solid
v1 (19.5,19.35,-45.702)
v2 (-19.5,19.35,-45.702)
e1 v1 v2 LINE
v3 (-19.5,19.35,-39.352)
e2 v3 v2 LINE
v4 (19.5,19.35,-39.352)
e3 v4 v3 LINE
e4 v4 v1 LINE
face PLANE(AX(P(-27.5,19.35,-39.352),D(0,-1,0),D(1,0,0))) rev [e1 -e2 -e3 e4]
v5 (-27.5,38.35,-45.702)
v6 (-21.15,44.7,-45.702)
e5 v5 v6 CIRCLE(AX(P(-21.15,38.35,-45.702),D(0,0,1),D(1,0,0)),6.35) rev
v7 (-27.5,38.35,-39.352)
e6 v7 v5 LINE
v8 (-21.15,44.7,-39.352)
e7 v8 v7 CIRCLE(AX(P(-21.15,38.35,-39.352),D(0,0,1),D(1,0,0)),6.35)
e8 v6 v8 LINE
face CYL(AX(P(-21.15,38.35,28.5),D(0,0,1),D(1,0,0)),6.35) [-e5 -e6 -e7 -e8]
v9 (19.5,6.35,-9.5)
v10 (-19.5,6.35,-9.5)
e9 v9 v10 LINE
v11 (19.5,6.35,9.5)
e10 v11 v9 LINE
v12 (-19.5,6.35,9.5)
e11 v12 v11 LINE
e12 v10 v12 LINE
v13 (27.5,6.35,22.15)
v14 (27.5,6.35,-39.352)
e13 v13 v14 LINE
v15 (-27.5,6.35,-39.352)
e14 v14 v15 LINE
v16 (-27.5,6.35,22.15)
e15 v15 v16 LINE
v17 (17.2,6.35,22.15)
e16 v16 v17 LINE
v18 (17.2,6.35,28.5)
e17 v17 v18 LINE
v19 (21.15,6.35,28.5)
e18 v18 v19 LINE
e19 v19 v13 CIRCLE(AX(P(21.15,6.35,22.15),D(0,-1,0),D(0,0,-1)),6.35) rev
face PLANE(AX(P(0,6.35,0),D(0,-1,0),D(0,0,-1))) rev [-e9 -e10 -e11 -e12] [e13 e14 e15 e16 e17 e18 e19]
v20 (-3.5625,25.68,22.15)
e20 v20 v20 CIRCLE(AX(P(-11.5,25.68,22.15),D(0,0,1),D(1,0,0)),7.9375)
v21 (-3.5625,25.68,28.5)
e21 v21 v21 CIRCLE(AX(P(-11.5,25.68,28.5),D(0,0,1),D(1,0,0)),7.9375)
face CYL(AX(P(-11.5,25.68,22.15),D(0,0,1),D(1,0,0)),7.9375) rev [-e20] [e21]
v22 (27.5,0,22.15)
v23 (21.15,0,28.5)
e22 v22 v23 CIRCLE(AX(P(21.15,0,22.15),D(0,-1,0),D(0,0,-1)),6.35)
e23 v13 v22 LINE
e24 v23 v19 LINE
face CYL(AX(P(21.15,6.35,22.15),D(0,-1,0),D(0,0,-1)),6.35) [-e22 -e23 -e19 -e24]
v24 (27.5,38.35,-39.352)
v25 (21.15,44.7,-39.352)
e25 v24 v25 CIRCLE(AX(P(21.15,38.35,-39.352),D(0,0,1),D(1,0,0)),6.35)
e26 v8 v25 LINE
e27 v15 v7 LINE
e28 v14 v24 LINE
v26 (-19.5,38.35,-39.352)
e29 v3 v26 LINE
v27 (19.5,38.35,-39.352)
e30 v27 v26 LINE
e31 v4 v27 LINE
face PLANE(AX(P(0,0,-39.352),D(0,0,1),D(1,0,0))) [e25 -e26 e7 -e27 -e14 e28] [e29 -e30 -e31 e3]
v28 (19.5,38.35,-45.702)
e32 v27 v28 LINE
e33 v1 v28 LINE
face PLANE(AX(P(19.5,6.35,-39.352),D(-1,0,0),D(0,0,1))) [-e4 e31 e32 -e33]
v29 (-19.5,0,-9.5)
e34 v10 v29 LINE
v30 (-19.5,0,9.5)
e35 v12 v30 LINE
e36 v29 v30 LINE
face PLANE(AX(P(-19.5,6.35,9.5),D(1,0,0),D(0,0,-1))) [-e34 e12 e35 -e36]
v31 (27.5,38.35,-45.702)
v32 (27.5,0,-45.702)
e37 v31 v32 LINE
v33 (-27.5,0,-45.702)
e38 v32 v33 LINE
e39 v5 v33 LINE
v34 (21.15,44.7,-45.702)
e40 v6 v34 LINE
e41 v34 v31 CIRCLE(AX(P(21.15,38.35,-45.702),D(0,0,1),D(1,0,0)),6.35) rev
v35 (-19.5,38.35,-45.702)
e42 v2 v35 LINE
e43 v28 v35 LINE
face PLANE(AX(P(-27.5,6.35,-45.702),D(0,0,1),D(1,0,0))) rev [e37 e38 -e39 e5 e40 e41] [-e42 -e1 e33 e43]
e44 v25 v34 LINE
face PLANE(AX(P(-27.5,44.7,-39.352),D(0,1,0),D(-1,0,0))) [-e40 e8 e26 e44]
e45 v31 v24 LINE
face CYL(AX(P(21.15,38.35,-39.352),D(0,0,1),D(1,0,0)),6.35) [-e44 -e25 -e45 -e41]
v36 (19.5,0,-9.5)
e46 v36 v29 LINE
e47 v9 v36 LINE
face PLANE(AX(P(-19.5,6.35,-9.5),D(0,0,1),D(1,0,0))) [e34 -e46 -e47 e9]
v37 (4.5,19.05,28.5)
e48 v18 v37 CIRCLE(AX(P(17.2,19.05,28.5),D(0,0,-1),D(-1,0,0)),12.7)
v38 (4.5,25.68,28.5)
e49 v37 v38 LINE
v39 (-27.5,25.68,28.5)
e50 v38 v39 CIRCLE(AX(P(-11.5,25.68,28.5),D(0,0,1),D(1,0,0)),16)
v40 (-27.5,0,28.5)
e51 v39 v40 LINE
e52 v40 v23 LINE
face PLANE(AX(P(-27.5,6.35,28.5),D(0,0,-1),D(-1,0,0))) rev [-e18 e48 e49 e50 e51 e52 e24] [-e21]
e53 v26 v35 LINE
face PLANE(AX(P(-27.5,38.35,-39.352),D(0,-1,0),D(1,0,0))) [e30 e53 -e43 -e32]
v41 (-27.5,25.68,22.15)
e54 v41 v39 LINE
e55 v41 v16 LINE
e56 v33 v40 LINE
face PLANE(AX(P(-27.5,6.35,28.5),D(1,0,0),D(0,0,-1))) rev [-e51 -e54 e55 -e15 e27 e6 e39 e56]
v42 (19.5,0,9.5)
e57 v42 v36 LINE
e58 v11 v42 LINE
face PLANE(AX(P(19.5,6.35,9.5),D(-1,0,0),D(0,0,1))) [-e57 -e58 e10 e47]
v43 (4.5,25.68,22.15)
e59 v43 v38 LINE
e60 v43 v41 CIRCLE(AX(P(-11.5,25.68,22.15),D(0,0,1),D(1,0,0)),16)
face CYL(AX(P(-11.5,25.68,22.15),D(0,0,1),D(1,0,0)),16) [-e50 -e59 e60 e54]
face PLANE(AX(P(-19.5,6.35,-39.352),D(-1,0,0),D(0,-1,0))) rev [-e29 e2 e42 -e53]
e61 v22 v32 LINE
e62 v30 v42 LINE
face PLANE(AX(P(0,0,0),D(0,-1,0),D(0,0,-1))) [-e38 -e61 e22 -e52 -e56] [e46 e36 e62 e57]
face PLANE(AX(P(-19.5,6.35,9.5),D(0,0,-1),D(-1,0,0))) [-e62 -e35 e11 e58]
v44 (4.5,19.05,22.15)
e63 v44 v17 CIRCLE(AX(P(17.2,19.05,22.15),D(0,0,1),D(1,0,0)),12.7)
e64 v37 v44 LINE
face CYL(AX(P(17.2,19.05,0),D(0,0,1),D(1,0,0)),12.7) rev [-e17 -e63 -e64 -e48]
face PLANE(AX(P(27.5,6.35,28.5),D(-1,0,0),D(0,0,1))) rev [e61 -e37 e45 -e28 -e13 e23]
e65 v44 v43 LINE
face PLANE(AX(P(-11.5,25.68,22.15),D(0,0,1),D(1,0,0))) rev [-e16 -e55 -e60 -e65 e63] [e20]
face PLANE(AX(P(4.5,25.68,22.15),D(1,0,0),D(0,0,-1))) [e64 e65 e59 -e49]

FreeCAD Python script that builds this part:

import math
import FreeCAD as App
import Part
import Sketcher
from FreeCAD import Vector
Q = App.Units.Quantity


def edges_at(feature, points):
    """Names of the edges that pass closest to the given points."""
    edges = feature.Shape.Edges
    near = lambda p: min(range(len(edges)), key=lambda i: edges[i].distToShape(Part.Vertex(*p))[0])
    return sorted({f"Edge{near(p) + 1}" for p in points})

doc = App.newDocument("Part")
body = doc.addObject("PartDesign::Body", "Body")

sketch1 = body.newObject("Sketcher::SketchObject", "Sketch")
sketch1.AttachmentSupport = (doc.getObject("XZ_Plane"), [""])
sketch1.MapMode = "FlatFace"
sketch1.addGeometry([
    Part.LineSegment(Vector(-27.5, -45.702, 0), Vector(-27.5, 28.5, 0)),
    Part.LineSegment(Vector(-27.5, 28.5, 0), Vector(27.5, 28.5, 0)),
    Part.LineSegment(Vector(27.5, 28.5, 0), Vector(27.5, -45.702, 0)),
    Part.LineSegment(Vector(27.5, -45.702, 0), Vector(-27.5, -45.702, 0)),
    Part.LineSegment(Vector(19.5, 9.5, 0), Vector(-19.5, 9.5, 0)),
    Part.LineSegment(Vector(-19.5, 9.5, 0), Vector(-19.5, -9.5, 0)),
    Part.LineSegment(Vector(-19.5, -9.5, 0), Vector(19.5, -9.5, 0)),
    Part.LineSegment(Vector(19.5, -9.5, 0), Vector(19.5, 9.5, 0)),
], False)
sketch1.addConstraint([
    Sketcher.Constraint("Coincident", 0, 2, 1, 1),
    Sketcher.Constraint("Coincident", 1, 2, 2, 1),
    Sketcher.Constraint("Coincident", 2, 2, 3, 1),
    Sketcher.Constraint("Coincident", 3, 2, 0, 1),
    Sketcher.Constraint("Coincident", 4, 2, 5, 1),
    Sketcher.Constraint("Coincident", 5, 2, 6, 1),
    Sketcher.Constraint("Coincident", 6, 2, 7, 1),
    Sketcher.Constraint("Coincident", 7, 2, 4, 1),
    Sketcher.Constraint("Vertical", 0),
    Sketcher.Constraint("Horizontal", 1),
    Sketcher.Constraint("Vertical", 2),
    Sketcher.Constraint("Horizontal", 3),
    Sketcher.Constraint("Horizontal", 4),
    Sketcher.Constraint("Vertical", 5),
    Sketcher.Constraint("Horizontal", 6),
    Sketcher.Constraint("Vertical", 7),
    Sketcher.Constraint("Symmetric", 4, 2, 6, 2, -1, 1),
    Sketcher.Constraint("DistanceX", 1, 1, 1, 2, Q("55 mm")),
    Sketcher.Constraint("DistanceX", 4, 2, 4, 1, Q("39 mm")),
    Sketcher.Constraint("DistanceY", 5, 2, 5, 1, Q("19 mm")),
    Sketcher.Constraint("DistanceX", 0, 2, 4, 2, Q("8 mm")),
    Sketcher.Constraint("DistanceY", 4, 2, 0, 2, Q("19 mm")),
    Sketcher.Constraint("DistanceY", 0, 1, 0, 2, Q("74.202 mm")),
])
pad1 = body.newObject("PartDesign::Pad", "Pad")
pad1.Profile = sketch1
pad1.Length = 6.35
pad1.Reversed = True

sketch2 = body.newObject("Sketcher::SketchObject", "Sketch001")
sketch2.AttachmentSupport = (doc.getObject("XY_Plane"), [""])
sketch2.MapMode = "FlatFace"
sketch2.AttachmentOffset = App.Placement(Vector(0, 0, -45.702), App.Rotation())
sketch2.addGeometry([
    Part.LineSegment(Vector(-27.5, 44.7, 0), Vector(-27.5, 6.35, 0)),
    Part.LineSegment(Vector(-27.5, 6.35, 0), Vector(27.5, 6.35, 0)),
    Part.LineSegment(Vector(27.5, 6.35, 0), Vector(27.5, 44.7, 0)),
    Part.LineSegment(Vector(27.5, 44.7, 0), Vector(-27.5, 44.7, 0)),
    Part.LineSegment(Vector(19.5, 19.35, 0), Vector(-19.5, 19.35, 0)),
    Part.LineSegment(Vector(-19.5, 19.35, 0), Vector(-19.5, 38.35, 0)),
    Part.LineSegment(Vector(-19.5, 38.35, 0), Vector(19.5, 38.35, 0)),
    Part.LineSegment(Vector(19.5, 38.35, 0), Vector(19.5, 19.35, 0)),
], False)
sketch2.addConstraint([
    Sketcher.Constraint("Coincident", 0, 2, 1, 1),
    Sketcher.Constraint("Coincident", 1, 2, 2, 1),
    Sketcher.Constraint("Coincident", 2, 2, 3, 1),
    Sketcher.Constraint("Coincident", 3, 2, 0, 1),
    Sketcher.Constraint("Coincident", 4, 2, 5, 1),
    Sketcher.Constraint("Coincident", 5, 2, 6, 1),
    Sketcher.Constraint("Coincident", 6, 2, 7, 1),
    Sketcher.Constraint("Coincident", 7, 2, 4, 1),
    Sketcher.Constraint("Vertical", 0),
    Sketcher.Constraint("Horizontal", 1),
    Sketcher.Constraint("Vertical", 2),
    Sketcher.Constraint("Horizontal", 3),
    Sketcher.Constraint("Horizontal", 4),
    Sketcher.Constraint("Vertical", 5),
    Sketcher.Constraint("Horizontal", 6),
    Sketcher.Constraint("Vertical", 7),
    Sketcher.Constraint("DistanceX", 1, 1, 1, 2, Q("55 mm")),
    Sketcher.Constraint("DistanceX", 4, 2, 4, 1, Q("39 mm")),
    Sketcher.Constraint("DistanceY", 5, 1, 5, 2, Q("19 mm")),
    Sketcher.Constraint("DistanceX", 0, 2, 4, 2, Q("8 mm")),
    Sketcher.Constraint("DistanceY", 0, 2, 4, 2, Q("13 mm")),
    Sketcher.Constraint("DistanceY", 0, 2, 0, 1, Q("38.35 mm")),
    Sketcher.Constraint("DistanceX", 0, 2, -1, 1, Q("27.5 mm")),
    Sketcher.Constraint("DistanceY", -1, 1, 2, 2, Q("44.7 mm")),
])
pad2 = body.newObject("PartDesign::Pad", "Pad001")
pad2.Profile = sketch2
pad2.Length = 6.35

sketch3 = body.newObject("Sketcher::SketchObject", "Sketch002")
sketch3.AttachmentSupport = (doc.getObject("XY_Plane"), [""])
sketch3.MapMode = "FlatFace"
sketch3.AttachmentOffset = App.Placement(Vector(0, 0, 28.5), App.Rotation())
sketch3.addGeometry([
    Part.LineSegment(Vector(-27.5, 25.68, 0), Vector(-27.5, 6.35, 0)),
    Part.LineSegment(Vector(-27.5, 6.35, 0), Vector(4.5, 6.35, 0)),
    Part.LineSegment(Vector(4.5, 6.35, 0), Vector(4.5, 25.68, 0)),
    Part.ArcOfCircle(Part.Circle(Vector(-11.5, 25.68, 0), Vector(0, 0, 1), 16), math.radians(0), math.radians(180)),
    Part.Circle(Vector(-11.5, 25.68, 0), Vector(0, 0, 1), 7.9375),
], False)
sketch3.addConstraint([
    Sketcher.Constraint("Coincident", 0, 2, 1, 1),
    Sketcher.Constraint("Coincident", 1, 2, 2, 1),
    Sketcher.Constraint("Tangent", 2, 2, 3, 1),
    Sketcher.Constraint("Tangent", 3, 2, 0, 1),
    Sketcher.Constraint("Vertical", 0),
    Sketcher.Constraint("Horizontal", 1),
    Sketcher.Constraint("Vertical", 2),
    Sketcher.Constraint("Coincident", 4, 3, 3, 3),
    Sketcher.Constraint("Radius", 3, Q("16 mm")),
    Sketcher.Constraint("Diameter", 4, Q("15.875 mm")),
    Sketcher.Constraint("DistanceY", 0, 2, 0, 1, Q("19.33 mm")),
    Sketcher.Constraint("DistanceX", 3, 3, -1, 1, Q("11.5 mm")),
    Sketcher.Constraint("DistanceY", -1, 1, 3, 3, Q("25.68 mm")),
])
pad3 = body.newObject("PartDesign::Pad", "Pad002")
pad3.Profile = sketch3
pad3.Length = 6.35
pad3.Reversed = True
doc.recompute()

fillet = body.newObject("PartDesign::Fillet", "Fillet")
fillet.Base = (pad3, edges_at(pad3, [(4.5, 6.35, 25.325)]))
fillet.Radius = 12.7
doc.recompute()

fillet2 = body.newObject("PartDesign::Fillet", "Fillet001")
fillet2.Base = (fillet, edges_at(fillet, [(27.5, 44.7, -42.527), (-27.5, 44.7, -42.527), (27.5, 3.175, 28.5)]))
fillet2.Radius = 6.35

doc.recompute()
